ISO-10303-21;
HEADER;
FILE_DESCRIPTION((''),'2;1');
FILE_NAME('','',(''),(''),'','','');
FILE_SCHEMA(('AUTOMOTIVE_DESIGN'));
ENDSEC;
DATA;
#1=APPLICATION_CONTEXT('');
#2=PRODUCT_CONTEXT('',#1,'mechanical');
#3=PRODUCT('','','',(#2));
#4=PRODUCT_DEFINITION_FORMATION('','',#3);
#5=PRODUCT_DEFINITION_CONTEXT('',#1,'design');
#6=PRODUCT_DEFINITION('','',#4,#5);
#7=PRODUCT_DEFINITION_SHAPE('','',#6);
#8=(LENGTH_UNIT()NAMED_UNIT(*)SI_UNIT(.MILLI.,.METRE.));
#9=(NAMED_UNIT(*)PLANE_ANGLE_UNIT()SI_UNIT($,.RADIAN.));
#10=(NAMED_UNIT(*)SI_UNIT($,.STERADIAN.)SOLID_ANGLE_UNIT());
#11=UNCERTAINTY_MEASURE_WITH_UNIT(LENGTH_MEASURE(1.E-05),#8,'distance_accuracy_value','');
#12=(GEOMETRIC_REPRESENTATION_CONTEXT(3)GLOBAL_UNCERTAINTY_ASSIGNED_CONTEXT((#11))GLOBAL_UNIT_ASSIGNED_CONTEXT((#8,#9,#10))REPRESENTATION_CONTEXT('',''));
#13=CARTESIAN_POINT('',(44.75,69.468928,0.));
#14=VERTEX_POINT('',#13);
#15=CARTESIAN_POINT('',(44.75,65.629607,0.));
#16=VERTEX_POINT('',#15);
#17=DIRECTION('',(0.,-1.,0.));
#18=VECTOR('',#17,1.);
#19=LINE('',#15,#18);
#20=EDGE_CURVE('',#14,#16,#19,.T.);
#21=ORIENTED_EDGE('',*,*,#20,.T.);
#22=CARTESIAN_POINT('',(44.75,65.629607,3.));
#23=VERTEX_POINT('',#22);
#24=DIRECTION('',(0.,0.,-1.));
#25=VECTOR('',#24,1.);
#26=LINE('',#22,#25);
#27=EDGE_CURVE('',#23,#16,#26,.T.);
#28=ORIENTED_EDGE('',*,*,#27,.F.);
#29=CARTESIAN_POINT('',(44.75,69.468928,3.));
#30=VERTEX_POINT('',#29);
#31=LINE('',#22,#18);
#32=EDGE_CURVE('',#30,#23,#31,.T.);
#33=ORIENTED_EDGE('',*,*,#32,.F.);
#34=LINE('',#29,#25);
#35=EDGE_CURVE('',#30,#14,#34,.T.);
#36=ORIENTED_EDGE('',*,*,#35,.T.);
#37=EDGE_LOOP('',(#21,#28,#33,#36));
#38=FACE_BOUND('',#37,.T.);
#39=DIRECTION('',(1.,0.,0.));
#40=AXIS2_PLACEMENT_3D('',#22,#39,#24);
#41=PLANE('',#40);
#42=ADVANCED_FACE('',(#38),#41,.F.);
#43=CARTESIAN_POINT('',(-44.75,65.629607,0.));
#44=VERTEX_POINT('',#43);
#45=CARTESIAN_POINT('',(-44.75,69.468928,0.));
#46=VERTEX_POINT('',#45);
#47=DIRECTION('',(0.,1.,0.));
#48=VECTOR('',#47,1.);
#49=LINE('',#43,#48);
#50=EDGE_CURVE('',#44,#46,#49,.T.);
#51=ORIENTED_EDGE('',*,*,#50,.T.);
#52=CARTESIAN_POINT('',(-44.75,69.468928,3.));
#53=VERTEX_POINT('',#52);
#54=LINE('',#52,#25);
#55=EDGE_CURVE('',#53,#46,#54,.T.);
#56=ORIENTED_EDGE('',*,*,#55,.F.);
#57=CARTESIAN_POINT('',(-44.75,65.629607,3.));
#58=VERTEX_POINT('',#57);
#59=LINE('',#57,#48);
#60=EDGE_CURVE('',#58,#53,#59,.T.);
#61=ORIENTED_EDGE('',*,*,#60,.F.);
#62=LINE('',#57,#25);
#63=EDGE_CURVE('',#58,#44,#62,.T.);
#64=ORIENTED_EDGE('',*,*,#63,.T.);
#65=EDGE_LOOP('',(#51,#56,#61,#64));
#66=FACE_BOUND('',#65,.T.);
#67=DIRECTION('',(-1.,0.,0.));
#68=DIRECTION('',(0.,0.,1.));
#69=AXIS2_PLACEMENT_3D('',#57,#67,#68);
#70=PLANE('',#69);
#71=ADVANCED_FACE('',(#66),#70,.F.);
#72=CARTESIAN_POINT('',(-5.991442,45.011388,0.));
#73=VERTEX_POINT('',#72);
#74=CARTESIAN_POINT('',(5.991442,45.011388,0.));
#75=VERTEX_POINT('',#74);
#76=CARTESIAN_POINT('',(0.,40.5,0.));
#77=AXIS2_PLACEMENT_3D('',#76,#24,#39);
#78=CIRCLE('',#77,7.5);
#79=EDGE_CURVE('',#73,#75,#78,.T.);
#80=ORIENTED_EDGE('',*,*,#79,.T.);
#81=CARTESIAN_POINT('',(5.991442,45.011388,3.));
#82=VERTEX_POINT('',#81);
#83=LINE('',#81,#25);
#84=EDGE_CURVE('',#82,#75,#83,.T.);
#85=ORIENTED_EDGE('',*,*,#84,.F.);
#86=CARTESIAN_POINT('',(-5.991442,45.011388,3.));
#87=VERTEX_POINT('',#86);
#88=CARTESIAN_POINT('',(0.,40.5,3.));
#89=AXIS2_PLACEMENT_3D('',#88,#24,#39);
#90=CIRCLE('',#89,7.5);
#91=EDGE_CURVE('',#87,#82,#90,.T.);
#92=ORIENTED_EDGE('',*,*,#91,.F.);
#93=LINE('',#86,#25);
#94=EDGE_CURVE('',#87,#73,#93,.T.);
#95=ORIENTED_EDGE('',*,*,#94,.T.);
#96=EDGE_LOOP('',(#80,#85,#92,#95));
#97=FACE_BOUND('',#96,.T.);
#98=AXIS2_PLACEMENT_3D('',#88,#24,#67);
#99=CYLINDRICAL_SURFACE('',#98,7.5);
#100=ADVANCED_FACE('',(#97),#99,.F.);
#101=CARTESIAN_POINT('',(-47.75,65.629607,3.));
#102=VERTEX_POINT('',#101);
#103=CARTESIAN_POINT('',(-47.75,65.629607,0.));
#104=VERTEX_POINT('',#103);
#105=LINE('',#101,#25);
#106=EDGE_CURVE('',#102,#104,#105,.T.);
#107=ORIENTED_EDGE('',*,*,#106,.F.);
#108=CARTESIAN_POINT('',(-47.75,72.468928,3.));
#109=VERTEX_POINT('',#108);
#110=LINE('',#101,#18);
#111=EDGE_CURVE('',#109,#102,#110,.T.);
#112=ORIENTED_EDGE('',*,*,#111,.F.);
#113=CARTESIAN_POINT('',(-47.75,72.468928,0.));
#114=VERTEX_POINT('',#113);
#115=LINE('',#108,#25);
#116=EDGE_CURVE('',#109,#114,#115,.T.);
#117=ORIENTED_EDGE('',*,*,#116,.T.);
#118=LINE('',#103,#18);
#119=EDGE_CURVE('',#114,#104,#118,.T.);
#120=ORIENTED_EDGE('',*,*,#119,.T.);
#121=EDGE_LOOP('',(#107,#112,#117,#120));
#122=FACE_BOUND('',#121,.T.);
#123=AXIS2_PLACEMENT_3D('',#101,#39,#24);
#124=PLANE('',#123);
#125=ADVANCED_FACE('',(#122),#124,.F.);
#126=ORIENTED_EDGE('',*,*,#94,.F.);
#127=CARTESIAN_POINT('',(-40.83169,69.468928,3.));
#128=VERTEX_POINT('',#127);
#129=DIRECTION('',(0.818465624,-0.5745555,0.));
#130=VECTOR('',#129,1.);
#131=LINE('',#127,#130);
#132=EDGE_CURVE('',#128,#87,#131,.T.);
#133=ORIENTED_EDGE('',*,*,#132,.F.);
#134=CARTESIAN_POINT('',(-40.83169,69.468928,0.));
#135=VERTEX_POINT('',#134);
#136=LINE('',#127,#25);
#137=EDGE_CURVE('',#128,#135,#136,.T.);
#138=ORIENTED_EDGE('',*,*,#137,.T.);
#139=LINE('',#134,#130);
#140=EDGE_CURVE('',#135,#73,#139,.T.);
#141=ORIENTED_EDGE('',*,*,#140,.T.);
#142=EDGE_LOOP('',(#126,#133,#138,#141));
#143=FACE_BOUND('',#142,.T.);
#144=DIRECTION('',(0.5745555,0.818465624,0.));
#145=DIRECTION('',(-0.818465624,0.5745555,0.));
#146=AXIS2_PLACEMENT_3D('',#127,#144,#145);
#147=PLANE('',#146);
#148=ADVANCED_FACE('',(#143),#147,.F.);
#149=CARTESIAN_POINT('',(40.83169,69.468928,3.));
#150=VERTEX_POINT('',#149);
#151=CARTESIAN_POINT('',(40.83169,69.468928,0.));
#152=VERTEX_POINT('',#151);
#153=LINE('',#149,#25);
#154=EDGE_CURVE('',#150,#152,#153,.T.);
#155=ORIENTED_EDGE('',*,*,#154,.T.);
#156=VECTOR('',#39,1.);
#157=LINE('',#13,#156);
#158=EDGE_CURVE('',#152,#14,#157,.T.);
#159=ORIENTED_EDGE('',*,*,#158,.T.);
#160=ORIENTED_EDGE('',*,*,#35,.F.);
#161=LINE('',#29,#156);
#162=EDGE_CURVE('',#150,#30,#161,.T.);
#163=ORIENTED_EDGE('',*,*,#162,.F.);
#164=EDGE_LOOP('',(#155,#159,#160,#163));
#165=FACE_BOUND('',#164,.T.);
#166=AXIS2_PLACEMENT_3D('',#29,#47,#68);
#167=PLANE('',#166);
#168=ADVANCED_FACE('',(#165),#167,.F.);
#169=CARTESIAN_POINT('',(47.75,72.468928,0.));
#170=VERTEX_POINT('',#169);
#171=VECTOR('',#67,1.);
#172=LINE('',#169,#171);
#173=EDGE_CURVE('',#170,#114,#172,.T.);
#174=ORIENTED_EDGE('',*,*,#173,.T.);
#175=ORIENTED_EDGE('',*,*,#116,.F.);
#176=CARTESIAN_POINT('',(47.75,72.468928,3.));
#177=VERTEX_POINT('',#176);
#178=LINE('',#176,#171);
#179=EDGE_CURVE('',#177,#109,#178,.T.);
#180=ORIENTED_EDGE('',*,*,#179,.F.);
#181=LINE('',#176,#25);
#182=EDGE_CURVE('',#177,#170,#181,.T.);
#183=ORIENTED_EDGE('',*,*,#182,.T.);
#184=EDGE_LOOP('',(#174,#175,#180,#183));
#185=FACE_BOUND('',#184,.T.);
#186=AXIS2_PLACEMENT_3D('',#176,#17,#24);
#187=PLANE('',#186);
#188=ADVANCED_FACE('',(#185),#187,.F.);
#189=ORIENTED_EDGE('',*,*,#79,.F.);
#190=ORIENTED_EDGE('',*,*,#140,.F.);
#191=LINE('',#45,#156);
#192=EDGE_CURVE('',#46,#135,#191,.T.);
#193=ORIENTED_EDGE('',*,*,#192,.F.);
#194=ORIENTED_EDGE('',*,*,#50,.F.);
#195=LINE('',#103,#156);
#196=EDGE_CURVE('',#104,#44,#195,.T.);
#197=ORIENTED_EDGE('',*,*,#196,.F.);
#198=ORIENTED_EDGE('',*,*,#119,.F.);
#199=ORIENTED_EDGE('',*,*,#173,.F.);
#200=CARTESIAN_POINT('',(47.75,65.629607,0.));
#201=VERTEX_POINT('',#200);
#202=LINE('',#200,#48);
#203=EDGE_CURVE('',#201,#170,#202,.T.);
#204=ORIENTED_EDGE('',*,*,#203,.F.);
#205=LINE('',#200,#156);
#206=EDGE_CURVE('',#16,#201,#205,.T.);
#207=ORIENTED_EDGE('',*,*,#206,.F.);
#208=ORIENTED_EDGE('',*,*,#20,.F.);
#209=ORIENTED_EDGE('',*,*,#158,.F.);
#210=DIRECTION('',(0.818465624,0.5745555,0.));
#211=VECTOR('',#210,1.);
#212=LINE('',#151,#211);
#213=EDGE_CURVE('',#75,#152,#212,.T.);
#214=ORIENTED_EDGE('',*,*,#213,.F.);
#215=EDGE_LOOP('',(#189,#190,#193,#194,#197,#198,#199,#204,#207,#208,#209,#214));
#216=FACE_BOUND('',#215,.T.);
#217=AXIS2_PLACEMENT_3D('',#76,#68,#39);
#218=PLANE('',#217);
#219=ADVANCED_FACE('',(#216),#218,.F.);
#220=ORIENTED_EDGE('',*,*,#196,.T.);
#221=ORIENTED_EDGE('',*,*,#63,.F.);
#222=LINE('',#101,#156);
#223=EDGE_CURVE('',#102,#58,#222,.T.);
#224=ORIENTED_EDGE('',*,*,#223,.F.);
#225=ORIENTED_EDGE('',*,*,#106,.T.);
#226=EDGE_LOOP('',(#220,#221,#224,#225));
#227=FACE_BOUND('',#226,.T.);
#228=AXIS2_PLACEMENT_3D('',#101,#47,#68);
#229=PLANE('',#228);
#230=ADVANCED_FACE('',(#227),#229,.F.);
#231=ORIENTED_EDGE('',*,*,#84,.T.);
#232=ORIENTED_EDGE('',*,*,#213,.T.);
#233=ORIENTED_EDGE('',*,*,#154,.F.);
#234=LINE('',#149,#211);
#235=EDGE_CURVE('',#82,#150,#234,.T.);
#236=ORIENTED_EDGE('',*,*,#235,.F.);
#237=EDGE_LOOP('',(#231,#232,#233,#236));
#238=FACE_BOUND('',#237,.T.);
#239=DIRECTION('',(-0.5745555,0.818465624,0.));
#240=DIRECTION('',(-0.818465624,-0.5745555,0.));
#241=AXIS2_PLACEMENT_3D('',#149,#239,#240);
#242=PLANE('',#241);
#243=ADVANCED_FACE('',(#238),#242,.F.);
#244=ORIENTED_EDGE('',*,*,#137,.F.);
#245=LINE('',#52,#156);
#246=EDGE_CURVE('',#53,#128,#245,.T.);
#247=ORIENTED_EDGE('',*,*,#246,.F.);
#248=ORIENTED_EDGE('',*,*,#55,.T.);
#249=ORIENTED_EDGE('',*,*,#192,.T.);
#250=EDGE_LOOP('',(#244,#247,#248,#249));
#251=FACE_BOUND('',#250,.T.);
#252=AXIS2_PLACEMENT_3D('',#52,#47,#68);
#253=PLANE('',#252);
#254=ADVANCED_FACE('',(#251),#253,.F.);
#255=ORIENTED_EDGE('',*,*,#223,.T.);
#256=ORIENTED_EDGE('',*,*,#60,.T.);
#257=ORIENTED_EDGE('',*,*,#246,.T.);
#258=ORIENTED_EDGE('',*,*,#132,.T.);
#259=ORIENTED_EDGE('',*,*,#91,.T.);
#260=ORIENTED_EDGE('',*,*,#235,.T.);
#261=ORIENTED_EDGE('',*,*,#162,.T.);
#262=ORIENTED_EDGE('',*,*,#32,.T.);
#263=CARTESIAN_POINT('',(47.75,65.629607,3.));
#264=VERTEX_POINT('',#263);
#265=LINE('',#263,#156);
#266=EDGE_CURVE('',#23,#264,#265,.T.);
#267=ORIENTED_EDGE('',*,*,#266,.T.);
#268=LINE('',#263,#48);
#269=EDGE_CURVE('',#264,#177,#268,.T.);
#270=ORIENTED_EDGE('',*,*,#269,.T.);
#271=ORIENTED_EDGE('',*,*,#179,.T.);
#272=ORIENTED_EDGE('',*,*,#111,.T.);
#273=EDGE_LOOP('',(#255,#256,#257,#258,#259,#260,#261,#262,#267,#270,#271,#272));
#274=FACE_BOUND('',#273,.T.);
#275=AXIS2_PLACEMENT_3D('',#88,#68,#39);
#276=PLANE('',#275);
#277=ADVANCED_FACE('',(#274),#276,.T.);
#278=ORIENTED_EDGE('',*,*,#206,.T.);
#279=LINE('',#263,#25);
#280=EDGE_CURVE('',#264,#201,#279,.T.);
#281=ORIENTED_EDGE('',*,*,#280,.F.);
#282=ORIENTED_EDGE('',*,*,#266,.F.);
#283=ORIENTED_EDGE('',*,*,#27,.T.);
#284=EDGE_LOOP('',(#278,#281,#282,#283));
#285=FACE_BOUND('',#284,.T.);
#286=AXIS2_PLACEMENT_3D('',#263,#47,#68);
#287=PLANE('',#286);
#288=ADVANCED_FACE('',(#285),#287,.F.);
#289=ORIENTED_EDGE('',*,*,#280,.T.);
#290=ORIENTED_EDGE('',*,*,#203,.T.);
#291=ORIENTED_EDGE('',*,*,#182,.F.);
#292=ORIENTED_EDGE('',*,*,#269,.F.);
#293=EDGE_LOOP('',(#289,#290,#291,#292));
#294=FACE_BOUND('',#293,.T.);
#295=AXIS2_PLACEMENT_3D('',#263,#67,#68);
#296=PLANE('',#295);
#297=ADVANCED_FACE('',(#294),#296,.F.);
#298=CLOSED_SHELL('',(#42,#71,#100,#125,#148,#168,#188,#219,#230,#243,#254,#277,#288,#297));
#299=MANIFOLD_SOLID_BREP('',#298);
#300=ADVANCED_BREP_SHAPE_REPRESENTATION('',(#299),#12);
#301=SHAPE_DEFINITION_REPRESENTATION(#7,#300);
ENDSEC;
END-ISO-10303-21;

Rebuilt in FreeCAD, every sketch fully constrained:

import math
import FreeCAD as App
import Part
import Sketcher
from FreeCAD import Vector

doc = App.newDocument("Part")
body = doc.addObject("PartDesign::Body", "Body")

sketch1 = body.newObject("Sketcher::SketchObject", "Sketch")
sketch1.AttachmentSupport = (doc.getObject("XY_Plane"), [""])
sketch1.MapMode = "FlatFace"
sketch1.addGeometry(Part.LineSegment(Vector(-47.8, 65.6, 0), Vector(-44.8, 65.6, 0)), False)
sketch1.addGeometry(Part.LineSegment(Vector(-44.8, 65.6, 0), Vector(-44.8, 69.5, 0)), False)
sketch1.addGeometry(Part.LineSegment(Vector(-44.8, 69.5, 0), Vector(-40.8, 69.5, 0)), False)
sketch1.addGeometry(Part.LineSegment(Vector(-40.8, 69.5, 0), Vector(-6, 45, 0)), False)
sketch1.addGeometry(Part.ArcOfCircle(Part.Circle(Vector(0, 40.5, 0), Vector(0, 0, 1), 7.5), math.radians(37), math.radians(143)), False)
sketch1.addGeometry(Part.LineSegment(Vector(6, 45, 0), Vector(40.8, 69.5, 0)), False)
sketch1.addGeometry(Part.LineSegment(Vector(40.8, 69.5, 0), Vector(44.8, 69.5, 0)), False)
sketch1.addGeometry(Part.LineSegment(Vector(44.8, 69.5, 0), Vector(44.8, 65.6, 0)), False)
sketch1.addGeometry(Part.LineSegment(Vector(44.8, 65.6, 0), Vector(47.8, 65.6, 0)), False)
sketch1.addGeometry(Part.LineSegment(Vector(47.8, 65.6, 0), Vector(47.8, 72.5, 0)), False)
sketch1.addGeometry(Part.LineSegment(Vector(47.8, 72.5, 0), Vector(-47.8, 72.5, 0)), False)
sketch1.addGeometry(Part.LineSegment(Vector(-47.8, 72.5, 0), Vector(-47.8, 65.6, 0)), False)
sketch1.addConstraint(Sketcher.Constraint("Coincident", 0, 2, 1, 1))
sketch1.addConstraint(Sketcher.Constraint("Coincident", 1, 2, 2, 1))
sketch1.addConstraint(Sketcher.Constraint("Coincident", 2, 2, 3, 1))
sketch1.addConstraint(Sketcher.Constraint("Coincident", 3, 2, 4, 2))
sketch1.addConstraint(Sketcher.Constraint("Coincident", 4, 1, 5, 1))
sketch1.addConstraint(Sketcher.Constraint("Coincident", 5, 2, 6, 1))
sketch1.addConstraint(Sketcher.Constraint("Coincident", 6, 2, 7, 1))
sketch1.addConstraint(Sketcher.Constraint("Coincident", 7, 2, 8, 1))
sketch1.addConstraint(Sketcher.Constraint("Coincident", 8, 2, 9, 1))
sketch1.addConstraint(Sketcher.Constraint("Coincident", 9, 2, 10, 1))
sketch1.addConstraint(Sketcher.Constraint("Coincident", 10, 2, 11, 1))
sketch1.addConstraint(Sketcher.Constraint("Coincident", 11, 2, 0, 1))
sketch1.addConstraint(Sketcher.Constraint("Horizontal", 0))
sketch1.addConstraint(Sketcher.Constraint("Vertical", 1))
sketch1.addConstraint(Sketcher.Constraint("Horizontal", 2))
sketch1.addConstraint(Sketcher.Constraint("Horizontal", 6))
sketch1.addConstraint(Sketcher.Constraint("Vertical", 7))
sketch1.addConstraint(Sketcher.Constraint("Horizontal", 8))
sketch1.addConstraint(Sketcher.Constraint("Vertical", 9))
sketch1.addConstraint(Sketcher.Constraint("Horizontal", 10))
sketch1.addConstraint(Sketcher.Constraint("Vertical", 11))
sketch1.addConstraint(Sketcher.Constraint("Symmetric", 3, 2, 4, 1, -2))
sketch1.addConstraint(Sketcher.Constraint("Symmetric", 2, 2, 5, 2, -2))
sketch1.addConstraint(Sketcher.Constraint("Symmetric", 0, 2, 7, 2, -2))
sketch1.addConstraint(Sketcher.Constraint("Equal", 0, 8))
sketch1.addConstraint(Sketcher.Constraint("Radius", 4, 7.5))
sketch1.addConstraint(Sketcher.Constraint("DistanceX", 0, 1, 0, 2, 3.0))
sketch1.addConstraint(Sketcher.Constraint("DistanceX", 10, 2, 10, 1, 95.5))
sketch1.addConstraint(Sketcher.Constraint("DistanceY", 6, 2, 9, 2, 3.0))
sketch1.addConstraint(Sketcher.Constraint("DistanceY", -1, 1, 4, 3, 40.5))
sketch1.addConstraint(Sketcher.Constraint("DistanceX", 2, 1, 2, 2, 3.91831))
sketch1.addConstraint(Sketcher.Constraint("DistanceY", 1, 1, 1, 2, 3.839321))
sketch1.addConstraint(Sketcher.Constraint("Distance", 3, 42.56776))
sketch1.addConstraint(Sketcher.Constraint("DistanceY", -1, 1, 1, 2, 69.468928))
pad1 = body.newObject("PartDesign::Pad", "Pad")
pad1.Profile = sketch1
pad1.Length = 3

doc.recompute()
